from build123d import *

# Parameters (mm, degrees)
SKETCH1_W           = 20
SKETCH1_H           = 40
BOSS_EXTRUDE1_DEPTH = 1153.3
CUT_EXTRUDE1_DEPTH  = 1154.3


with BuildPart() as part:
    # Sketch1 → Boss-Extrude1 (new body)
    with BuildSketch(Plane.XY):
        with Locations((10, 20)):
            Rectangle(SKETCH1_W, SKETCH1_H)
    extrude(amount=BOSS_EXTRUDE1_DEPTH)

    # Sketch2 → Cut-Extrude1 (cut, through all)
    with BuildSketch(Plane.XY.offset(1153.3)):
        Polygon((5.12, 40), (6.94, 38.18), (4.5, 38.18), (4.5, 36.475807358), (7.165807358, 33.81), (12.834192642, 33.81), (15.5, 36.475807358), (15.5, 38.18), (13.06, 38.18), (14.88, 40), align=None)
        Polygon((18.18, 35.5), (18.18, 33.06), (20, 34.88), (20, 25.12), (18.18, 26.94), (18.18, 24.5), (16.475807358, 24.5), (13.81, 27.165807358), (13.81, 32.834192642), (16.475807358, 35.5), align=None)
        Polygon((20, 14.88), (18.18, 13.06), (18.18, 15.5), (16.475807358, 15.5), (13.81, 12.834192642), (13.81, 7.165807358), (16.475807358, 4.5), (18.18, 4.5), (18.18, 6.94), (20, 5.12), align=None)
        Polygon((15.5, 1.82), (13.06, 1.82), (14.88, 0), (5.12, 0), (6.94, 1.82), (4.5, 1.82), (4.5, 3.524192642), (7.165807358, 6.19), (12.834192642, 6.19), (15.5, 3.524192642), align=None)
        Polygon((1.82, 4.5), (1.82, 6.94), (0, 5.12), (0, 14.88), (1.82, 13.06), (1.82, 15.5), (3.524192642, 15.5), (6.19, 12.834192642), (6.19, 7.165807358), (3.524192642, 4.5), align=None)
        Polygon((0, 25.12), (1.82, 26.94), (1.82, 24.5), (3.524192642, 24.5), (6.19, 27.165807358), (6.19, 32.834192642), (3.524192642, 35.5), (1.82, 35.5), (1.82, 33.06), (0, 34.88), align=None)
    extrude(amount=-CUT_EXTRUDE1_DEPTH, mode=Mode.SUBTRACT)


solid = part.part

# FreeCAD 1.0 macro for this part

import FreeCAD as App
import Part
import Sketcher

V = App.Vector
Q = App.Units.Quantity

doc = App.newDocument("Part")
body = doc.addObject("PartDesign::Body", "Body")

# Sketch on XY plane
sketch1 = body.newObject("Sketcher::SketchObject", "Sketch")
sketch1.AttachmentSupport = (doc.getObject("XY_Plane"), [""])
sketch1.MapMode = "FlatFace"
sketch1.addGeometry([
    Part.LineSegment(V(0, 40, 0), V(0, 0, 0)),
    Part.LineSegment(V(0, 0, 0), V(20, 0, 0)),
    Part.LineSegment(V(20, 0, 0), V(20, 40, 0)),
    Part.LineSegment(V(20, 40, 0), V(0, 40, 0)),
], False)
sketch1.addConstraint([
    Sketcher.Constraint("Coincident", 0, 2, 1, 1),
    Sketcher.Constraint("Coincident", 1, 2, 2, 1),
    Sketcher.Constraint("Coincident", 2, 2, 3, 1),
    Sketcher.Constraint("Coincident", 3, 2, 0, 1),
    Sketcher.Constraint("Vertical", 0),
    Sketcher.Constraint("Horizontal", 1),
    Sketcher.Constraint("Vertical", 2),
    Sketcher.Constraint("Horizontal", 3),
    Sketcher.Constraint("Coincident", 0, 2, -1, 1),
    Sketcher.Constraint("DistanceX", 1, 1, 1, 2, Q("20 mm")),
    Sketcher.Constraint("DistanceY", 0, 2, 0, 1, Q("40 mm")),
])
pad1 = body.newObject("PartDesign::Pad", "Pad")
pad1.Profile = sketch1
pad1.Length = 1153.3

# Sketch on XY plane
sketch2 = body.newObject("Sketcher::SketchObject", "Sketch001")
sketch2.AttachmentSupport = (doc.getObject("XY_Plane"), [""])
sketch2.MapMode = "FlatFace"
sketch2.AttachmentOffset = App.Placement(V(0, 0, 1153.3), App.Rotation())
sketch2.addGeometry([
    Part.LineSegment(V(5.1, 40, 0), V(6.9, 38.2, 0)),  # 0
    Part.LineSegment(V(6.9, 38.2, 0), V(4.5, 38.2, 0)),  # 1
    Part.LineSegment(V(4.5, 38.2, 0), V(4.5, 36.5, 0)),  # 2
    Part.LineSegment(V(4.5, 36.5, 0), V(7.2, 33.8, 0)),  # 3
    Part.LineSegment(V(7.2, 33.8, 0), V(12.8, 33.8, 0)),  # 4
    Part.LineSegment(V(12.8, 33.8, 0), V(15.5, 36.5, 0)),  # 5
    Part.LineSegment(V(15.5, 36.5, 0), V(15.5, 38.2, 0)),  # 6
    Part.LineSegment(V(15.5, 38.2, 0), V(13.1, 38.2, 0)),  # 7
    Part.LineSegment(V(13.1, 38.2, 0), V(14.9, 40, 0)),  # 8
    Part.LineSegment(V(14.9, 40, 0), V(5.1, 40, 0)),  # 9
    Part.LineSegment(V(18.2, 33.1, 0), V(18.2, 35.5, 0)),  # 10
    Part.LineSegment(V(18.2, 35.5, 0), V(16.5, 35.5, 0)),  # 11
    Part.LineSegment(V(16.5, 35.5, 0), V(13.8, 32.8, 0)),  # 12
    Part.LineSegment(V(13.8, 32.8, 0), V(13.8, 27.2, 0)),  # 13
    Part.LineSegment(V(13.8, 27.2, 0), V(16.5, 24.5, 0)),  # 14
    Part.LineSegment(V(16.5, 24.5, 0), V(18.2, 24.5, 0)),  # 15
    Part.LineSegment(V(18.2, 24.5, 0), V(18.2, 26.9, 0)),  # 16
    Part.LineSegment(V(18.2, 26.9, 0), V(20, 25.1, 0)),  # 17
    Part.LineSegment(V(20, 25.1, 0), V(20, 34.9, 0)),  # 18
    Part.LineSegment(V(20, 34.9, 0), V(18.2, 33.1, 0)),  # 19
    Part.LineSegment(V(20, 14.9, 0), V(18.2, 13.1, 0)),  # 20
    Part.LineSegment(V(18.2, 13.1, 0), V(18.2, 15.5, 0)),  # 21
    Part.LineSegment(V(18.2, 15.5, 0), V(16.5, 15.5, 0)),  # 22
    Part.LineSegment(V(16.5, 15.5, 0), V(13.8, 12.8, 0)),  # 23
    Part.LineSegment(V(13.8, 12.8, 0), V(13.8, 7.2, 0)),  # 24
    Part.LineSegment(V(13.8, 7.2, 0), V(16.5, 4.5, 0)),  # 25
    Part.LineSegment(V(16.5, 4.5, 0), V(18.2, 4.5, 0)),  # 26
    Part.LineSegment(V(18.2, 4.5, 0), V(18.2, 6.9, 0)),  # 27
    Part.LineSegment(V(18.2, 6.9, 0), V(20, 5.1, 0)),  # 28
    Part.LineSegment(V(20, 5.1, 0), V(20, 14.9, 0)),  # 29
    Part.LineSegment(V(13.1, 1.8, 0), V(15.5, 1.8, 0)),  # 30
    Part.LineSegment(V(15.5, 1.8, 0), V(15.5, 3.5, 0)),  # 31
    Part.LineSegment(V(15.5, 3.5, 0), V(12.8, 6.2, 0)),  # 32
    Part.LineSegment(V(12.8, 6.2, 0), V(7.2, 6.2, 0)),  # 33
    Part.LineSegment(V(7.2, 6.2, 0), V(4.5, 3.5, 0)),  # 34
    Part.LineSegment(V(4.5, 3.5, 0), V(4.5, 1.8, 0)),  # 35
    Part.LineSegment(V(4.5, 1.8, 0), V(6.9, 1.8, 0)),  # 36
    Part.LineSegment(V(6.9, 1.8, 0), V(5.1, 0, 0)),  # 37
    Part.LineSegment(V(5.1, 0, 0), V(14.9, 0, 0)),  # 38
    Part.LineSegment(V(14.9, 0, 0), V(13.1, 1.8, 0)),  # 39
    Part.LineSegment(V(1.8, 6.9, 0), V(1.8, 4.5, 0)),  # 40
    Part.LineSegment(V(1.8, 4.5, 0), V(3.5, 4.5, 0)),  # 41
    Part.LineSegment(V(3.5, 4.5, 0), V(6.2, 7.2, 0)),  # 42
    Part.LineSegment(V(6.2, 7.2, 0), V(6.2, 12.8, 0)),  # 43
    Part.LineSegment(V(6.2, 12.8, 0), V(3.5, 15.5, 0)),  # 44
    Part.LineSegment(V(3.5, 15.5, 0), V(1.8, 15.5, 0)),  # 45
    Part.LineSegment(V(1.8, 15.5, 0), V(1.8, 13.1, 0)),  # 46
    Part.LineSegment(V(1.8, 13.1, 0), V(0, 14.9, 0)),  # 47
    Part.LineSegment(V(0, 14.9, 0), V(0, 5.1, 0)),  # 48
    Part.LineSegment(V(0, 5.1, 0), V(1.8, 6.9, 0)),  # 49
    Part.LineSegment(V(0, 25.1, 0), V(1.8, 26.9, 0)),  # 50
    Part.LineSegment(V(1.8, 26.9, 0), V(1.8, 24.5, 0)),  # 51
    Part.LineSegment(V(1.8, 24.5, 0), V(3.5, 24.5, 0)),  # 52
    Part.LineSegment(V(3.5, 24.5, 0), V(6.2, 27.2, 0)),  # 53
    Part.LineSegment(V(6.2, 27.2, 0), V(6.2, 32.8, 0)),  # 54
    Part.LineSegment(V(6.2, 32.8, 0), V(3.5, 35.5, 0)),  # 55
    Part.LineSegment(V(3.5, 35.5, 0), V(1.8, 35.5, 0)),  # 56
    Part.LineSegment(V(1.8, 35.5, 0), V(1.8, 33.1, 0)),  # 57
    Part.LineSegment(V(1.8, 33.1, 0), V(0, 34.9, 0)),  # 58
    Part.LineSegment(V(0, 34.9, 0), V(0, 25.1, 0)),  # 59
], False)
sketch2.addConstraint([
    Sketcher.Constraint("Coincident", 0, 2, 1, 1),
    Sketcher.Constraint("Coincident", 1, 2, 2, 1),
    Sketcher.Constraint("Coincident", 2, 2, 3, 1),
    Sketcher.Constraint("Coincident", 3, 2, 4, 1),
    Sketcher.Constraint("Coincident", 4, 2, 5, 1),
    Sketcher.Constraint("Coincident", 5, 2, 6, 1),
    Sketcher.Constraint("Coincident", 6, 2, 7, 1),
    Sketcher.Constraint("Coincident", 7, 2, 8, 1),
    Sketcher.Constraint("Coincident", 8, 2, 9, 1),
    Sketcher.Constraint("Coincident", 9, 2, 0, 1),
    Sketcher.Constraint("Coincident", 10, 2, 11, 1),
    Sketcher.Constraint("Coincident", 11, 2, 12, 1),
    Sketcher.Constraint("Coincident", 12, 2, 13, 1),
    Sketcher.Constraint("Coincident", 13, 2, 14, 1),
    Sketcher.Constraint("Coincident", 14, 2, 15, 1),
    Sketcher.Constraint("Coincident", 15, 2, 16, 1),
    Sketcher.Constraint("Coincident", 16, 2, 17, 1),
    Sketcher.Constraint("Coincident", 17, 2, 18, 1),
    Sketcher.Constraint("Coincident", 18, 2, 19, 1),
    Sketcher.Constraint("Coincident", 19, 2, 10, 1),
    Sketcher.Constraint("Coincident", 20, 2, 21, 1),
    Sketcher.Constraint("Coincident", 21, 2, 22, 1),
    Sketcher.Constraint("Coincident", 22, 2, 23, 1),
    Sketcher.Constraint("Coincident", 23, 2, 24, 1),
    Sketcher.Constraint("Coincident", 24, 2, 25, 1),
    Sketcher.Constraint("Coincident", 25, 2, 26, 1),
    Sketcher.Constraint("Coincident", 26, 2, 27, 1),
    Sketcher.Constraint("Coincident", 27, 2, 28, 1),
    Sketcher.Constraint("Coincident", 28, 2, 29, 1),
    Sketcher.Constraint("Coincident", 29, 2, 20, 1),
    Sketcher.Constraint("Coincident", 30, 2, 31, 1),
    Sketcher.Constraint("Coincident", 31, 2, 32, 1),
    Sketcher.Constraint("Coincident", 32, 2, 33, 1),
    Sketcher.Constraint("Coincident", 33, 2, 34, 1),
    Sketcher.Constraint("Coincident", 34, 2, 35, 1),
    Sketcher.Constraint("Coincident", 35, 2, 36, 1),
    Sketcher.Constraint("Coincident", 36, 2, 37, 1),
    Sketcher.Constraint("Coincident", 37, 2, 38, 1),
    Sketcher.Constraint("Coincident", 38, 2, 39, 1),
    Sketcher.Constraint("Coincident", 39, 2, 30, 1),
    Sketcher.Constraint("Coincident", 40, 2, 41, 1),
    Sketcher.Constraint("Coincident", 41, 2, 42, 1),
    Sketcher.Constraint("Coincident", 42, 2, 43, 1),
    Sketcher.Constraint("Coincident", 43, 2, 44, 1),
    Sketcher.Constraint("Coincident", 44, 2, 45, 1),
    Sketcher.Constraint("Coincident", 45, 2, 46, 1),
    Sketcher.Constraint("Coincident", 46, 2, 47, 1),
    Sketcher.Constraint("Coincident", 47, 2, 48, 1),
    Sketcher.Constraint("Coincident", 48, 2, 49, 1),
    Sketcher.Constraint("Coincident", 49, 2, 40, 1),
    Sketcher.Constraint("Coincident", 50, 2, 51, 1),
    Sketcher.Constraint("Coincident", 51, 2, 52, 1),
    Sketcher.Constraint("Coincident", 52, 2, 53, 1),
    Sketcher.Constraint("Coincident", 53, 2, 54, 1),
    Sketcher.Constraint("Coincident", 54, 2, 55, 1),
    Sketcher.Constraint("Coincident", 55, 2, 56, 1),
    Sketcher.Constraint("Coincident", 56, 2, 57, 1),
    Sketcher.Constraint("Coincident", 57, 2, 58, 1),
    Sketcher.Constraint("Coincident", 58, 2, 59, 1),
    Sketcher.Constraint("Coincident", 59, 2, 50, 1),
    Sketcher.Constraint("Horizontal", 1),
    Sketcher.Constraint("Vertical", 2),
    Sketcher.Constraint("Horizontal", 4),
    Sketcher.Constraint("Vertical", 6),
    Sketcher.Constraint("Horizontal", 7),
    Sketcher.Constraint("Horizontal", 9),
    Sketcher.Constraint("Vertical", 10),
    Sketcher.Constraint("Horizontal", 11),
    Sketcher.Constraint("Vertical", 13),
    Sketcher.Constraint("Horizontal", 15),
    Sketcher.Constraint("Vertical", 16),
    Sketcher.Constraint("Vertical", 18),
    Sketcher.Constraint("Vertical", 21),
    Sketcher.Constraint("Horizontal", 22),
    Sketcher.Constraint("Vertical", 24),
    Sketcher.Constraint("Horizontal", 26),
    Sketcher.Constraint("Vertical", 27),
    Sketcher.Constraint("Vertical", 29),
    Sketcher.Constraint("Horizontal", 30),
    Sketcher.Constraint("Vertical", 31),
    Sketcher.Constraint("Horizontal", 33),
    Sketcher.Constraint("Vertical", 35),
    Sketcher.Constraint("Horizontal", 36),
    Sketcher.Constraint("Horizontal", 38),
    Sketcher.Constraint("Vertical", 40),
    Sketcher.Constraint("Horizontal", 41),
    Sketcher.Constraint("Vertical", 43),
    Sketcher.Constraint("Horizontal", 45),
    Sketcher.Constraint("Vertical", 46),
    Sketcher.Constraint("Vertical", 48),
    Sketcher.Constraint("Vertical", 51),
    Sketcher.Constraint("Horizontal", 52),
    Sketcher.Constraint("Vertical", 54),
    Sketcher.Constraint("Horizontal", 56),
    Sketcher.Constraint("Vertical", 57),
    Sketcher.Constraint("Vertical", 59),
    Sketcher.Constraint("PointOnObject", 37, 2, -1),
    Sketcher.Constraint("PointOnObject", 47, 2, -2),
    Sketcher.Constraint("PointOnObject", 58, 2, -2),
    Sketcher.Constraint("Parallel", 0, 3),
    Sketcher.Constraint("Perpendicular", 3, 5),
    Sketcher.Constraint("Parallel", 5, 8),
    Sketcher.Constraint("Parallel", 8, 12),
    Sketcher.Constraint("Perpendicular", 12, 14),
    Sketcher.Constraint("Parallel", 14, 17),
    Sketcher.Constraint("Perpendicular", 17, 19),
    Sketcher.Constraint("Parallel", 19, 20),
    Sketcher.Constraint("Parallel", 20, 23),
    Sketcher.Constraint("Perpendicular", 23, 25),
    Sketcher.Constraint("Parallel", 25, 28),
    Sketcher.Constraint("Parallel", 28, 32),
    Sketcher.Constraint("Perpendicular", 32, 34),
    Sketcher.Constraint("Parallel", 34, 37),
    Sketcher.Constraint("Perpendicular", 37, 39),
    Sketcher.Constraint("Perpendicular", 39, 42),
    Sketcher.Constraint("Perpendicular", 42, 44),
    Sketcher.Constraint("Parallel", 44, 47),
    Sketcher.Constraint("Perpendicular", 47, 49),
    Sketcher.Constraint("Parallel", 49, 50),
    Sketcher.Constraint("Parallel", 50, 53),
    Sketcher.Constraint("Perpendicular", 53, 55),
    Sketcher.Constraint("Parallel", 55, 58),
    Sketcher.Constraint("Horizontal", 2, 2, 5, 2),
    Sketcher.Constraint("Horizontal", 1, 2, 6, 2),
    Sketcher.Constraint("Horizontal", 31, 2, 34, 2),
    Sketcher.Constraint("Horizontal", 30, 2, 35, 2),
    Sketcher.Constraint("Horizontal", 26, 2, 40, 2),
    Sketcher.Constraint("Horizontal", 24, 2, 42, 2),
    Sketcher.Constraint("Horizontal", 23, 2, 43, 2),
    Sketcher.Constraint("Horizontal", 22, 2, 44, 2),
    Sketcher.Constraint("Horizontal", 20, 2, 46, 2),
    Sketcher.Constraint("Horizontal", 29, 2, 47, 2),
    Sketcher.Constraint("Horizontal", 28, 2, 48, 2),
    Sketcher.Constraint("Horizontal", 27, 2, 49, 2),
    Sketcher.Constraint("Horizontal", 16, 2, 50, 2),
    Sketcher.Constraint("Horizontal", 15, 2, 51, 2),
    Sketcher.Constraint("Horizontal", 13, 2, 53, 2),
    Sketcher.Constraint("Horizontal", 12, 2, 54, 2),
    Sketcher.Constraint("Horizontal", 11, 2, 55, 2),
    Sketcher.Constraint("Horizontal", 19, 2, 57, 2),
    Sketcher.Constraint("Horizontal", 18, 2, 58, 2),
    Sketcher.Constraint("Horizontal", 17, 2, 59, 2),
    Sketcher.Constraint("Vertical", 11, 2, 14, 2),
    Sketcher.Constraint("Vertical", 10, 2, 15, 2),
    Sketcher.Constraint("Vertical", 19, 2, 20, 2),
    Sketcher.Constraint("Vertical", 14, 2, 22, 2),
    Sketcher.Constraint("Vertical", 13, 2, 23, 2),
    Sketcher.Constraint("Vertical", 22, 2, 25, 2),
    Sketcher.Constraint("Vertical", 21, 2, 26, 2),
    Sketcher.Constraint("Vertical", 18, 2, 28, 2),
    Sketcher.Constraint("Vertical", 6, 2, 30, 2),
    Sketcher.Constraint("Vertical", 4, 2, 32, 2),
    Sketcher.Constraint("Vertical", 3, 2, 33, 2),
    Sketcher.Constraint("Vertical", 2, 2, 34, 2),
    Sketcher.Constraint("Vertical", 0, 2, 36, 2),
    Sketcher.Constraint("Vertical", 9, 2, 37, 2),
    Sketcher.Constraint("Vertical", 8, 2, 38, 2),
    Sketcher.Constraint("Vertical", 44, 2, 52, 2),
    Sketcher.Constraint("Equal", 1, 7),
    Sketcher.Constraint("Equal", 26, 41),
    Sketcher.Constraint("Equal", 56, 2),
    Sketcher.Constraint("Equal", 36, 10),
    Sketcher.Constraint("Equal", 33, 13),
    Sketcher.Constraint("Equal", 10, 16),
    Sketcher.Constraint("Equal", 38, 18),
    Sketcher.Constraint("Equal", 16, 21),
    Sketcher.Constraint("Equal", 13, 24),
    Sketcher.Constraint("Equal", 21, 27),
    Sketcher.Constraint("Equal", 6, 31),
    Sketcher.Constraint("Equal", 5, 12),
    Sketcher.Constraint("DistanceY", -1, 1, 8, 2, Q("40 mm")),
    Sketcher.Constraint("DistanceX", -1, 1, 17, 2, Q("20 mm")),
    Sketcher.Constraint("DistanceX", 2, 2, 5, 2, Q("11 mm")),
    Sketcher.Constraint("DistanceY", 21, 2, 15, 2, Q("9 mm")),
    Sketcher.Constraint("DistanceX", 1, 2, 1, 1, Q("2.44 mm")),
    Sketcher.Constraint("DistanceX", 9, 2, 9, 1, Q("9.76 mm")),
    Sketcher.Constraint("DistanceX", -1, 1, 1, 2, Q("4.5 mm")),
    Sketcher.Constraint("DistanceY", -1, 1, 10, 2, Q("35.5 mm")),
    Sketcher.Constraint("DistanceY", -1, 1, 3, 2, Q("33.81 mm")),
    Sketcher.Constraint("Distance", 3, Q("3.770021 mm")),
])
pocket1 = body.newObject("PartDesign::Pocket", "Pocket")
pocket1.Profile = sketch2
pocket1.Type = "ThroughAll"

doc.recompute()
